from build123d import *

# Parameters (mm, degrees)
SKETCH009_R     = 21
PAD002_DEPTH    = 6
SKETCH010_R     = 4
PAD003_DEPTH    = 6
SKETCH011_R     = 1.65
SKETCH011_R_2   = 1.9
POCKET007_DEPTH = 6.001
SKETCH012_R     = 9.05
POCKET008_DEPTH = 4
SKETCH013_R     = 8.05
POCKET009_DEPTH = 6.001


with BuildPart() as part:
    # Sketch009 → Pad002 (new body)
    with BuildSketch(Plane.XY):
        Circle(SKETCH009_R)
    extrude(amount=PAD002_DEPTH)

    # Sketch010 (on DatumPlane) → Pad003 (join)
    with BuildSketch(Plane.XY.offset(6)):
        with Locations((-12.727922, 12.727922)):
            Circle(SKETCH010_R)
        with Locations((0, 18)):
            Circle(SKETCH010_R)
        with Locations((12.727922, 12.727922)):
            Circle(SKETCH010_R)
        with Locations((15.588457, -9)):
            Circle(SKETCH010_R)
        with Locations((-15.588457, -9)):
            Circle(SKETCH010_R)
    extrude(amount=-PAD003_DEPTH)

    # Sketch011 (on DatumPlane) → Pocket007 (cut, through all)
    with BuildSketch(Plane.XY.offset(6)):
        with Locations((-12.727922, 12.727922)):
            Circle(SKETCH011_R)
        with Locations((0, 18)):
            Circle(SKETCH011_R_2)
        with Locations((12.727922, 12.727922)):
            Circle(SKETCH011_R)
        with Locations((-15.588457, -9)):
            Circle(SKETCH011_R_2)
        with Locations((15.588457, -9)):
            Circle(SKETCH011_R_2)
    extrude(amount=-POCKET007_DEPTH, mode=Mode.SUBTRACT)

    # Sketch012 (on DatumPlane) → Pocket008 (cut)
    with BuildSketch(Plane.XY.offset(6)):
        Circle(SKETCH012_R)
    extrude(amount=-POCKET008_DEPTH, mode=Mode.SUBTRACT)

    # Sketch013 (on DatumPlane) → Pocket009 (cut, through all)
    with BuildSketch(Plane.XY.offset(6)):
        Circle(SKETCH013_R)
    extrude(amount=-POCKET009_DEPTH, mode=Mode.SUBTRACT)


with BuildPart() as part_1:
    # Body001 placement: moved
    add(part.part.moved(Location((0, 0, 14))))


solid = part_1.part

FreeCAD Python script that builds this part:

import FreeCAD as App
import Part
import Sketcher
from FreeCAD import Vector

doc = App.newDocument("Part")
params = doc.addObject("Spreadsheet::Sheet", "Params")
for row, (alias, value) in enumerate([
    ("sketch1_diameter", "42 mm"),
    ("pad1_length", "6 mm"),
    ("sketch2_diameter", "8 mm"),
    ("pad2_length", "6 mm"),
    ("sketch3_diameter", "3.3 mm"),
    ("sketch3_diameter2", "3.8 mm"),
    ("sketch4_diameter", "18.1 mm"),
    ("pocket2_length", "4 mm"),
    ("sketch5_diameter", "16.1 mm"),
], start=1):
    params.set(f"A{row}", alias)
    params.set(f"B{row}", "=" + value)
    params.setAlias(f"B{row}", alias)

body = doc.addObject("PartDesign::Body", "Body")

sketch1 = body.newObject("Sketcher::SketchObject", "Sketch")
sketch1.AttachmentSupport = (doc.getObject("XY_Plane"), [""])
sketch1.MapMode = "FlatFace"
sketch1.addGeometry(Part.Circle(Vector(0, 0, 0), Vector(0, 0, 1), 21), False)
sketch1.addConstraint([
    Sketcher.Constraint("Coincident", 0, 3, -1, 1),
    Sketcher.Constraint("Diameter", 0, 42.0),
])
sketch1.setExpression("Constraints[1]", "Params.sketch1_diameter")
pad1 = body.newObject("PartDesign::Pad", "Pad")
pad1.Profile = sketch1
pad1.setExpression("Length", "Params.pad1_length")

sketch2 = body.newObject("Sketcher::SketchObject", "Sketch001")
sketch2.AttachmentSupport = (doc.getObject("XY_Plane"), [""])
sketch2.MapMode = "FlatFace"
sketch2.AttachmentOffset = App.Placement(Vector(0, 0, 6), App.Rotation())
sketch2.addGeometry([
    Part.Circle(Vector(-12.727922, 12.727922, 0), Vector(0, 0, 1), 4),
    Part.Circle(Vector(0, 18, 0), Vector(0, 0, 1), 4),
    Part.Circle(Vector(12.727922, 12.727922, 0), Vector(0, 0, 1), 4),
    Part.Circle(Vector(15.588457, -9, 0), Vector(0, 0, 1), 4),
    Part.Circle(Vector(-15.588457, -9, 0), Vector(0, 0, 1), 4),
], False)
sketch2.addConstraint([
    Sketcher.Constraint("Equal", 0, 1),
    Sketcher.Constraint("Equal", 1, 2),
    Sketcher.Constraint("Equal", 2, 3),
    Sketcher.Constraint("Equal", 3, 4),
    Sketcher.Constraint("Symmetric", 0, 3, 2, 3, -2),
    Sketcher.Constraint("Symmetric", 3, 3, 4, 3, -2),
    Sketcher.Constraint("PointOnObject", 1, 3, -2),
    Sketcher.Constraint("Diameter", 0, 8.0),
    Sketcher.Constraint("DistanceY", -1, 1, 1, 3, 18.0),
    Sketcher.Constraint("DistanceY", 3, 3, -1, 1, 9.0),
    Sketcher.Constraint("DistanceY", 0, 3, 1, 3, 5.272078),
    Sketcher.Constraint("DistanceX", 0, 3, 3, 3, 28.316379),
    Sketcher.Constraint("DistanceX", 0, 3, -1, 1, 12.727922),
])
sketch2.setExpression("Constraints[7]", "Params.sketch2_diameter")
pad2 = body.newObject("PartDesign::Pad", "Pad001")
pad2.Profile = sketch2
pad2.setExpression("Length", "Params.pad2_length")
pad2.Reversed = True

sketch3 = body.newObject("Sketcher::SketchObject", "Sketch002")
sketch3.AttachmentSupport = (doc.getObject("XY_Plane"), [""])
sketch3.MapMode = "FlatFace"
sketch3.AttachmentOffset = App.Placement(Vector(0, 0, 6), App.Rotation())
sketch3.addGeometry([
    Part.Circle(Vector(-12.727922, 12.727922, 0), Vector(0, 0, 1), 1.65),
    Part.Circle(Vector(0, 18, 0), Vector(0, 0, 1), 1.9),
    Part.Circle(Vector(12.727922, 12.727922, 0), Vector(0, 0, 1), 1.65),
    Part.Circle(Vector(-15.588457, -9, 0), Vector(0, 0, 1), 1.9),
    Part.Circle(Vector(15.588457, -9, 0), Vector(0, 0, 1), 1.9),
], False)
sketch3.addConstraint([
    Sketcher.Constraint("Equal", 0, 2),
    Sketcher.Constraint("Equal", 1, 3),
    Sketcher.Constraint("Equal", 3, 4),
    Sketcher.Constraint("Symmetric", 0, 3, 2, 3, -2),
    Sketcher.Constraint("Symmetric", 3, 3, 4, 3, -2),
    Sketcher.Constraint("PointOnObject", 1, 3, -2),
    Sketcher.Constraint("Diameter", 0, 3.3),
    Sketcher.Constraint("Diameter", 1, 3.8),
    Sketcher.Constraint("DistanceY", -1, 1, 1, 3, 18.0),
    Sketcher.Constraint("DistanceY", 3, 3, -1, 1, 9.0),
    Sketcher.Constraint("DistanceY", 0, 3, 1, 3, 5.272078),
    Sketcher.Constraint("DistanceX", 3, 3, 2, 3, 28.316379),
    Sketcher.Constraint("DistanceX", 0, 3, -1, 1, 12.727922),
])
sketch3.setExpression("Constraints[6]", "Params.sketch3_diameter")
sketch3.setExpression("Constraints[7]", "Params.sketch3_diameter2")
pocket1 = body.newObject("PartDesign::Pocket", "Pocket")
pocket1.Profile = sketch3
pocket1.Type = "ThroughAll"

sketch4 = body.newObject("Sketcher::SketchObject", "Sketch003")
sketch4.AttachmentSupport = (doc.getObject("XY_Plane"), [""])
sketch4.MapMode = "FlatFace"
sketch4.AttachmentOffset = App.Placement(Vector(0, 0, 6), App.Rotation())
sketch4.addGeometry(Part.Circle(Vector(0, 0, 0), Vector(0, 0, 1), 9.05), False)
sketch4.addConstraint([
    Sketcher.Constraint("Coincident", 0, 3, -1, 1),
    Sketcher.Constraint("Diameter", 0, 18.1),
])
sketch4.setExpression("Constraints[1]", "Params.sketch4_diameter")
pocket2 = body.newObject("PartDesign::Pocket", "Pocket001")
pocket2.Profile = sketch4
pocket2.setExpression("Length", "Params.pocket2_length")

sketch5 = body.newObject("Sketcher::SketchObject", "Sketch004")
sketch5.AttachmentSupport = (doc.getObject("XY_Plane"), [""])
sketch5.MapMode = "FlatFace"
sketch5.AttachmentOffset = App.Placement(Vector(0, 0, 6), App.Rotation())
sketch5.addGeometry(Part.Circle(Vector(0, 0, 0), Vector(0, 0, 1), 8.05), False)
sketch5.addConstraint([
    Sketcher.Constraint("Coincident", 0, 3, -1, 1),
    Sketcher.Constraint("Diameter", 0, 16.1),
])
sketch5.setExpression("Constraints[1]", "Params.sketch5_diameter")
pocket3 = body.newObject("PartDesign::Pocket", "Pocket002")
pocket3.Profile = sketch5
pocket3.Type = "ThroughAll"
body2 = doc.addObject("PartDesign::Body", "Body001")
doc.recompute()

body.Placement = App.Placement(Vector(0, 0, 14), App.Rotation(Vector(0, 0, 1), 0))
boolean = body2.newObject("PartDesign::Boolean", "Boolean")
boolean.Type = "Fuse"
boolean.addObjects([body])

doc.recompute()
